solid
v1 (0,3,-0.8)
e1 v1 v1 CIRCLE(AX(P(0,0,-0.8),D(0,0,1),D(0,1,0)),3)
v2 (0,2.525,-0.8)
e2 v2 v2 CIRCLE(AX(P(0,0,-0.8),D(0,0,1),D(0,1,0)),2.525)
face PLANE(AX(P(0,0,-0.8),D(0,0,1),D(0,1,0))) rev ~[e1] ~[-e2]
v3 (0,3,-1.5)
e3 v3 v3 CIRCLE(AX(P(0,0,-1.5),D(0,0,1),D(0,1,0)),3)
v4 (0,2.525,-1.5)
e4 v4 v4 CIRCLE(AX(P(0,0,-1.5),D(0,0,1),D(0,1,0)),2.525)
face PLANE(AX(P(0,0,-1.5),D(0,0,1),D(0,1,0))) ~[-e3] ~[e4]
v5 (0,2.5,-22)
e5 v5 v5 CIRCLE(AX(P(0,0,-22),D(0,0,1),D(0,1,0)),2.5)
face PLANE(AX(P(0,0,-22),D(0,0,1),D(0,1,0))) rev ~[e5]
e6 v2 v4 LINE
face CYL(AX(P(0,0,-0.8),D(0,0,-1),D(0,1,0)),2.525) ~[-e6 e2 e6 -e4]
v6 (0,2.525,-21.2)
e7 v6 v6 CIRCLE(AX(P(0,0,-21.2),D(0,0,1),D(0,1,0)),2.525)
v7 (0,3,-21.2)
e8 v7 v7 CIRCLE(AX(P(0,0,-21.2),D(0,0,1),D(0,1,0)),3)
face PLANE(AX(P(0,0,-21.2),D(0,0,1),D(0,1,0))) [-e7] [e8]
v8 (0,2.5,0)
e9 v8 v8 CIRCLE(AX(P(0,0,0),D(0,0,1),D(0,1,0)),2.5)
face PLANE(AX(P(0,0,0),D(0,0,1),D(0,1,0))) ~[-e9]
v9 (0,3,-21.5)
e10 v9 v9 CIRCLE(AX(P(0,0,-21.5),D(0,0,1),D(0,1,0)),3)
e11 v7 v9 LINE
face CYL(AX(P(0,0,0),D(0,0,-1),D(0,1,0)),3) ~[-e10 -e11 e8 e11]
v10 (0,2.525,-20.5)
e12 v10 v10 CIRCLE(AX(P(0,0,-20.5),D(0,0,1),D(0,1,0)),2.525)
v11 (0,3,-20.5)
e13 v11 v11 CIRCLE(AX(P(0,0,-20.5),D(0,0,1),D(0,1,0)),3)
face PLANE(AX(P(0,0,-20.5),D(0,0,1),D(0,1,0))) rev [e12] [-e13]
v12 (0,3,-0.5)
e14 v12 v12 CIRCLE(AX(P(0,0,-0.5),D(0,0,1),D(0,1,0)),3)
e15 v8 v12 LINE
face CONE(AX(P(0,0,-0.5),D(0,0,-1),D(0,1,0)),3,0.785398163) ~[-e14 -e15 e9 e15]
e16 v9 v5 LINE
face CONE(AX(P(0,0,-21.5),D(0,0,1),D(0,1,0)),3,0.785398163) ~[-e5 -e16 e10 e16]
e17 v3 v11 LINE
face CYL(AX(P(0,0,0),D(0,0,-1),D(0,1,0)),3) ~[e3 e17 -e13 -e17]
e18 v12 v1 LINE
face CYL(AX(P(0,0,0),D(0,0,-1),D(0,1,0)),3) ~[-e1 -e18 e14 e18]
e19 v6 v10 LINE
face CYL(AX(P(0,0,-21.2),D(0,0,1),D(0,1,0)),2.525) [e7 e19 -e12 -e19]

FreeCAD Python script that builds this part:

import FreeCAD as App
import Part
import Sketcher
Q = App.Units.Quantity


def edges_at(feature, points):
    """Names of the edges that pass closest to the given points."""
    edges = feature.Shape.Edges
    near = lambda p: min(range(len(edges)), key=lambda i: edges[i].distToShape(Part.Vertex(*p))[0])
    return sorted({f"Edge{near(p) + 1}" for p in points})

doc = App.newDocument("Part")
params = doc.addObject("Spreadsheet::Sheet", "Params")
for row, (alias, value) in enumerate([
    ("sketch1_height", "22 mm"),
    ("sketch1_height2", "19 mm"),
    ("sketch1_height3", "0.8 mm"),
    ("sketch1_width", "3 mm"),
    ("revolution_angle", "360 deg"),
    ("chamfer_size", "0.5 mm"),
], start=1):
    params.set(f"A{row}", alias)
    params.set(f"B{row}", "=" + value)
    params.setAlias(f"B{row}", alias)

body = doc.addObject("PartDesign::Body", "Body")

# Sketch on YZ plane
sketch1 = doc.addObject("Sketcher::SketchObject", "Sketch")
body.addObject(sketch1)
sketch1.AttachmentSupport = (doc.YZ_Plane, [""])
sketch1.MapMode = "FlatFace"
sketch1.addGeometry(Part.LineSegment(App.Vector(3, 0, 0), App.Vector(0, 0, 0)), False)
sketch1.addGeometry(Part.LineSegment(App.Vector(0, 0, 0), App.Vector(0, -22, 0)), False)
sketch1.addGeometry(Part.LineSegment(App.Vector(0, -22, 0), App.Vector(3, -22, 0)), False)
sketch1.addGeometry(Part.LineSegment(App.Vector(3, -22, 0), App.Vector(3, -21.2, 0)), False)
sketch1.addGeometry(Part.LineSegment(App.Vector(3, -21.2, 0), App.Vector(2.52, -21.2, 0)), False)
sketch1.addGeometry(Part.LineSegment(App.Vector(2.52, -21.2, 0), App.Vector(2.52, -20.5, 0)), False)
sketch1.addGeometry(Part.LineSegment(App.Vector(2.52, -20.5, 0), App.Vector(3, -20.5, 0)), False)
sketch1.addGeometry(Part.LineSegment(App.Vector(3, -20.5, 0), App.Vector(3, -1.5, 0)), False)
sketch1.addGeometry(Part.LineSegment(App.Vector(3, -1.5, 0), App.Vector(2.52, -1.5, 0)), False)
sketch1.addGeometry(Part.LineSegment(App.Vector(2.52, -1.5, 0), App.Vector(2.52, -0.8, 0)), False)
sketch1.addGeometry(Part.LineSegment(App.Vector(2.52, -0.8, 0), App.Vector(3, -0.8, 0)), False)
sketch1.addGeometry(Part.LineSegment(App.Vector(3, -0.8, 0), App.Vector(3, 0, 0)), False)
sketch1.addConstraint(Sketcher.Constraint("Coincident", 0, 2, 1, 1))
sketch1.addConstraint(Sketcher.Constraint("Coincident", 1, 2, 2, 1))
sketch1.addConstraint(Sketcher.Constraint("Coincident", 2, 2, 3, 1))
sketch1.addConstraint(Sketcher.Constraint("Coincident", 3, 2, 4, 1))
sketch1.addConstraint(Sketcher.Constraint("Coincident", 4, 2, 5, 1))
sketch1.addConstraint(Sketcher.Constraint("Coincident", 5, 2, 6, 1))
sketch1.addConstraint(Sketcher.Constraint("Coincident", 6, 2, 7, 1))
sketch1.addConstraint(Sketcher.Constraint("Coincident", 7, 2, 8, 1))
sketch1.addConstraint(Sketcher.Constraint("Coincident", 8, 2, 9, 1))
sketch1.addConstraint(Sketcher.Constraint("Coincident", 9, 2, 10, 1))
sketch1.addConstraint(Sketcher.Constraint("Coincident", 10, 2, 11, 1))
sketch1.addConstraint(Sketcher.Constraint("Coincident", 11, 2, 0, 1))
sketch1.addConstraint(Sketcher.Constraint("Horizontal", 0))
sketch1.addConstraint(Sketcher.Constraint("Vertical", 1))
sketch1.addConstraint(Sketcher.Constraint("Horizontal", 2))
sketch1.addConstraint(Sketcher.Constraint("Vertical", 3))
sketch1.addConstraint(Sketcher.Constraint("Horizontal", 4))
sketch1.addConstraint(Sketcher.Constraint("Vertical", 5))
sketch1.addConstraint(Sketcher.Constraint("Horizontal", 6))
sketch1.addConstraint(Sketcher.Constraint("Vertical", 7))
sketch1.addConstraint(Sketcher.Constraint("Horizontal", 8))
sketch1.addConstraint(Sketcher.Constraint("Vertical", 9))
sketch1.addConstraint(Sketcher.Constraint("Horizontal", 10))
sketch1.addConstraint(Sketcher.Constraint("Vertical", 11))
sketch1.addConstraint(Sketcher.Constraint("Coincident", 0, 2, -1, 1))
sketch1.addConstraint(Sketcher.Constraint("Vertical", 3, 2, 6, 2))
sketch1.addConstraint(Sketcher.Constraint("Vertical", 5, 2, 8, 2))
sketch1.addConstraint(Sketcher.Constraint("Vertical", 7, 2, 10, 2))
sketch1.addConstraint(Sketcher.Constraint("Equal", 5, 9))
sketch1.addConstraint(Sketcher.Constraint("Equal", 3, 11))
sketch1.addConstraint(Sketcher.Constraint("DistanceY", 1, 2, 1, 1, Q("22 mm")))
sketch1.addConstraint(Sketcher.Constraint("DistanceY", 7, 1, 7, 2, Q("19 mm")))
sketch1.addConstraint(Sketcher.Constraint("DistanceY", 3, 1, 3, 2, Q("0.8 mm")))
sketch1.addConstraint(Sketcher.Constraint("DistanceX", 0, 2, 0, 1, Q("3 mm")))
sketch1.addConstraint(Sketcher.Constraint("DistanceX", 4, 2, 4, 1, Q("0.475 mm")))
sketch1.setExpression("Constraints[30]", "Params.sketch1_height")
sketch1.setExpression("Constraints[31]", "Params.sketch1_height2")
sketch1.setExpression("Constraints[32]", "Params.sketch1_height3")
sketch1.setExpression("Constraints[33]", "Params.sketch1_width")
revolution = doc.addObject("PartDesign::Revolution", "Revolution")
body.addObject(revolution)
revolution.Profile = sketch1
revolution.ReferenceAxis = (sketch1, ["V_Axis"])
revolution.setExpression("Angle", "Params.revolution_angle")
doc.recompute()

chamfer = doc.addObject("PartDesign::Chamfer", "Chamfer")
body.addObject(chamfer)
chamfer.Base = (revolution, edges_at(revolution, [(0, -3, 0), (0, -3, -22)]))
chamfer.setExpression("Size", "Params.chamfer_size")

doc.recompute()
